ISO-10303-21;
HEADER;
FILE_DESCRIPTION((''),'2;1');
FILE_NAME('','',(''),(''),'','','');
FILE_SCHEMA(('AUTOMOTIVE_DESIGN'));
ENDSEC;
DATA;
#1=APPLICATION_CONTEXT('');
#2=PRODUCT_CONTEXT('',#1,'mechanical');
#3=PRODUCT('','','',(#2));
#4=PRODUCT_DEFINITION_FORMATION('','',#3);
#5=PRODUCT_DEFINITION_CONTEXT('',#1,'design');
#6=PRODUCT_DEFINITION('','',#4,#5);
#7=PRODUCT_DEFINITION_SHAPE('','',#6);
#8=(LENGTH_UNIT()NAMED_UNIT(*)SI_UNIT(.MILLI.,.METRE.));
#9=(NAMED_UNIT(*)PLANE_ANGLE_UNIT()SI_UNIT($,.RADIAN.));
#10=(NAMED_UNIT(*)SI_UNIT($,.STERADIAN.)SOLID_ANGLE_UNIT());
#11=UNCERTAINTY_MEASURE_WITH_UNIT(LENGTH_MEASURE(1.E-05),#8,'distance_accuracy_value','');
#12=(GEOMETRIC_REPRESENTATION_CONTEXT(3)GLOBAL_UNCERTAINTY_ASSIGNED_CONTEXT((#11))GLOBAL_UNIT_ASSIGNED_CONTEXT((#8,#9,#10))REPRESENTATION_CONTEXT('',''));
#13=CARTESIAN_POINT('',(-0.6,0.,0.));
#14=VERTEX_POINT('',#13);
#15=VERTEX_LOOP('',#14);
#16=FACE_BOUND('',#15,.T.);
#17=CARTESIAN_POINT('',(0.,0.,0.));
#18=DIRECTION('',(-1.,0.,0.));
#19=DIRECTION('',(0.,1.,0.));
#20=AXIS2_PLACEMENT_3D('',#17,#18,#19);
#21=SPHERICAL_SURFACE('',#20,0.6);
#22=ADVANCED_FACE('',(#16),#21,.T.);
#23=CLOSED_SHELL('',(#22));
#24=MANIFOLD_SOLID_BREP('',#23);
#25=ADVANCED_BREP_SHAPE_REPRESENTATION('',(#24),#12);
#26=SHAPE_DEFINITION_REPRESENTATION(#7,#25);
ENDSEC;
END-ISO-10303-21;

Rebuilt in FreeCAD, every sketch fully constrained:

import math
import FreeCAD as App
import Part
import Sketcher
Q = App.Units.Quantity

doc = App.newDocument("Part")
body = doc.addObject("PartDesign::Body", "Body")

sketch1 = body.newObject("Sketcher::SketchObject", "Sketch")
sketch1.AttachmentSupport = (doc.getObject("XY_Plane"), [""])
sketch1.MapMode = "FlatFace"
sketch1.addGeometry([
    Part.LineSegment(App.Vector(-0.6, 0, 0), App.Vector(0.6, 0, 0)),
    Part.ArcOfCircle(Part.Circle(App.Vector(0, 0, 0), App.Vector(0, 0, 1), 0.6), math.radians(0), math.radians(180)),
], False)
sketch1.addConstraint([
    Sketcher.Constraint("Coincident", 0, 1, 1, 2),
    Sketcher.Constraint("Coincident", 1, 1, 0, 2),
    Sketcher.Constraint("Horizontal", 0),
    Sketcher.Constraint("Coincident", 1, 3, -1, 1),
    Sketcher.Constraint("PointOnObject", 0, 1, -1),
    Sketcher.Constraint("Radius", 1, Q("0.6 mm")),
])
revolution = body.newObject("PartDesign::Revolution", "Revolution")
revolution.Profile = sketch1
revolution.ReferenceAxis = (sketch1, ["H_Axis"])
revolution.Angle = 360

doc.recompute()
